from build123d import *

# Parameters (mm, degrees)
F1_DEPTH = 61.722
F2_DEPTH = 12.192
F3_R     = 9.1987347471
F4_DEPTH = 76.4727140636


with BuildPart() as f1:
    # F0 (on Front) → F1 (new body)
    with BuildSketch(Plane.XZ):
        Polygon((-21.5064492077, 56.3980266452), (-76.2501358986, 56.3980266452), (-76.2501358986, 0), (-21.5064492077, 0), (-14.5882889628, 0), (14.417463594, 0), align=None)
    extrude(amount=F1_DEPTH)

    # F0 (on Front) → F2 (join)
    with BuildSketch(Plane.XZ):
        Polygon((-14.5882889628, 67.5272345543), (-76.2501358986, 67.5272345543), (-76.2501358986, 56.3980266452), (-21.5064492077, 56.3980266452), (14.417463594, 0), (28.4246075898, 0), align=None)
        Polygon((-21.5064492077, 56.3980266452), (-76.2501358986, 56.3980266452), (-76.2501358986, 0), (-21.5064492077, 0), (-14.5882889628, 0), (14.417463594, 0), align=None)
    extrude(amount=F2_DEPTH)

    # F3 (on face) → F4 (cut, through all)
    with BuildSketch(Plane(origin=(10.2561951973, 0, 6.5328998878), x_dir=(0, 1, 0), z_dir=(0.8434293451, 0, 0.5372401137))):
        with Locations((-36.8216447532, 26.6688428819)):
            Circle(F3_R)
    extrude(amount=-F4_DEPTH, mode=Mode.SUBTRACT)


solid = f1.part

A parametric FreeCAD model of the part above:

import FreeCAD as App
import Part
import Sketcher
Q = App.Units.Quantity


def add_polygon(sketch, points):
    """Adds a closed chain of lines whose ends are joined by coincident constraints."""
    first, n = sketch.GeometryCount, len(points)
    for a, b in zip(points, points[1:] + points[:1]):
        sketch.addGeometry(Part.LineSegment(App.Vector(*a, 0), App.Vector(*b, 0)), False)
    for i in range(n):
        sketch.addConstraint(Sketcher.Constraint("Coincident", first + i, 2, first + (i + 1) % n, 1))

doc = App.newDocument("Part")
body = doc.addObject("PartDesign::Body", "Body")

# Sketch on XZ plane
sketch1 = doc.addObject("Sketcher::SketchObject", "Sketch")
body.addObject(sketch1)
sketch1.AttachmentSupport = (doc.XZ_Plane, [""])
sketch1.MapMode = "FlatFace"
add_polygon(sketch1, [(-22, 56), (-76, 56), (-76, 0), (14, 0)])  # lines 0-3
sketch1.addConstraint(Sketcher.Constraint("Horizontal", 0))
sketch1.addConstraint(Sketcher.Constraint("Vertical", 1))
sketch1.addConstraint(Sketcher.Constraint("Horizontal", 2))
sketch1.addConstraint(Sketcher.Constraint("PointOnObject", 1, 2, -1))
sketch1.addConstraint(Sketcher.Constraint("DistanceX", 2, 1, 2, 2, 90.667599))
sketch1.addConstraint(Sketcher.Constraint("DistanceX", 0, 2, 0, 1, 54.743687))
sketch1.addConstraint(Sketcher.Constraint("DistanceY", 1, 2, 1, 1, 56.398027))
sketch1.addConstraint(Sketcher.Constraint("DistanceX", 3, 2, -1, 1, 21.506449))
pad1 = doc.addObject("PartDesign::Pad", "Pad")
body.addObject(pad1)
pad1.Profile = sketch1
pad1.Length = Q("2.43 in")

# Sketch on XZ plane
sketch2 = doc.addObject("Sketcher::SketchObject", "Sketch001")
body.addObject(sketch2)
sketch2.AttachmentSupport = (doc.XZ_Plane, [""])
sketch2.MapMode = "FlatFace"
add_polygon(sketch2, [(-15, 68), (-76, 68), (-76, 0), (28, 0)])  # lines 0-3
sketch2.addConstraint(Sketcher.Constraint("Horizontal", 0))
sketch2.addConstraint(Sketcher.Constraint("Vertical", 1))
sketch2.addConstraint(Sketcher.Constraint("Horizontal", 2))
sketch2.addConstraint(Sketcher.Constraint("PointOnObject", 1, 2, -1))
sketch2.addConstraint(Sketcher.Constraint("DistanceX", 0, 2, 0, 1, 61.661847))
sketch2.addConstraint(Sketcher.Constraint("DistanceX", 2, 1, 2, 2, 104.674743))
sketch2.addConstraint(Sketcher.Constraint("DistanceY", 1, 2, 1, 1, 67.527235))
sketch2.addConstraint(Sketcher.Constraint("DistanceX", 3, 2, -1, 1, 14.588289))
pad2 = doc.addObject("PartDesign::Pad", "Pad001")
body.addObject(pad2)
pad2.Profile = sketch2
pad2.Length = Q("0.48 in")

# Sketch on an angled plane
sketch3 = doc.addObject("Sketcher::SketchObject", "Sketch002")
body.addObject(sketch3)
sketch3.Placement = App.Placement(App.Vector(10.256195, 0, 6.5329), App.Rotation(App.Vector(0, 1, 0), App.Vector(-0.537240114, 0, 0.843429345), App.Vector(0.843429345, 0, 0.537240114), "ZXY"))
sketch3.addGeometry(Part.Circle(App.Vector(-37, 27, 0), App.Vector(0, 0, 1), 9), False)
sketch3.addConstraint(Sketcher.Constraint("Diameter", 0, 18.397469))
sketch3.addConstraint(Sketcher.Constraint("DistanceX", 0, 3, -1, 1, 36.821645))
sketch3.addConstraint(Sketcher.Constraint("DistanceY", -1, 1, 0, 3, 26.668843))
pocket1 = doc.addObject("PartDesign::Pocket", "Pocket")
body.addObject(pocket1)
pocket1.Profile = sketch3
pocket1.Type = "ThroughAll"

doc.recompute()
